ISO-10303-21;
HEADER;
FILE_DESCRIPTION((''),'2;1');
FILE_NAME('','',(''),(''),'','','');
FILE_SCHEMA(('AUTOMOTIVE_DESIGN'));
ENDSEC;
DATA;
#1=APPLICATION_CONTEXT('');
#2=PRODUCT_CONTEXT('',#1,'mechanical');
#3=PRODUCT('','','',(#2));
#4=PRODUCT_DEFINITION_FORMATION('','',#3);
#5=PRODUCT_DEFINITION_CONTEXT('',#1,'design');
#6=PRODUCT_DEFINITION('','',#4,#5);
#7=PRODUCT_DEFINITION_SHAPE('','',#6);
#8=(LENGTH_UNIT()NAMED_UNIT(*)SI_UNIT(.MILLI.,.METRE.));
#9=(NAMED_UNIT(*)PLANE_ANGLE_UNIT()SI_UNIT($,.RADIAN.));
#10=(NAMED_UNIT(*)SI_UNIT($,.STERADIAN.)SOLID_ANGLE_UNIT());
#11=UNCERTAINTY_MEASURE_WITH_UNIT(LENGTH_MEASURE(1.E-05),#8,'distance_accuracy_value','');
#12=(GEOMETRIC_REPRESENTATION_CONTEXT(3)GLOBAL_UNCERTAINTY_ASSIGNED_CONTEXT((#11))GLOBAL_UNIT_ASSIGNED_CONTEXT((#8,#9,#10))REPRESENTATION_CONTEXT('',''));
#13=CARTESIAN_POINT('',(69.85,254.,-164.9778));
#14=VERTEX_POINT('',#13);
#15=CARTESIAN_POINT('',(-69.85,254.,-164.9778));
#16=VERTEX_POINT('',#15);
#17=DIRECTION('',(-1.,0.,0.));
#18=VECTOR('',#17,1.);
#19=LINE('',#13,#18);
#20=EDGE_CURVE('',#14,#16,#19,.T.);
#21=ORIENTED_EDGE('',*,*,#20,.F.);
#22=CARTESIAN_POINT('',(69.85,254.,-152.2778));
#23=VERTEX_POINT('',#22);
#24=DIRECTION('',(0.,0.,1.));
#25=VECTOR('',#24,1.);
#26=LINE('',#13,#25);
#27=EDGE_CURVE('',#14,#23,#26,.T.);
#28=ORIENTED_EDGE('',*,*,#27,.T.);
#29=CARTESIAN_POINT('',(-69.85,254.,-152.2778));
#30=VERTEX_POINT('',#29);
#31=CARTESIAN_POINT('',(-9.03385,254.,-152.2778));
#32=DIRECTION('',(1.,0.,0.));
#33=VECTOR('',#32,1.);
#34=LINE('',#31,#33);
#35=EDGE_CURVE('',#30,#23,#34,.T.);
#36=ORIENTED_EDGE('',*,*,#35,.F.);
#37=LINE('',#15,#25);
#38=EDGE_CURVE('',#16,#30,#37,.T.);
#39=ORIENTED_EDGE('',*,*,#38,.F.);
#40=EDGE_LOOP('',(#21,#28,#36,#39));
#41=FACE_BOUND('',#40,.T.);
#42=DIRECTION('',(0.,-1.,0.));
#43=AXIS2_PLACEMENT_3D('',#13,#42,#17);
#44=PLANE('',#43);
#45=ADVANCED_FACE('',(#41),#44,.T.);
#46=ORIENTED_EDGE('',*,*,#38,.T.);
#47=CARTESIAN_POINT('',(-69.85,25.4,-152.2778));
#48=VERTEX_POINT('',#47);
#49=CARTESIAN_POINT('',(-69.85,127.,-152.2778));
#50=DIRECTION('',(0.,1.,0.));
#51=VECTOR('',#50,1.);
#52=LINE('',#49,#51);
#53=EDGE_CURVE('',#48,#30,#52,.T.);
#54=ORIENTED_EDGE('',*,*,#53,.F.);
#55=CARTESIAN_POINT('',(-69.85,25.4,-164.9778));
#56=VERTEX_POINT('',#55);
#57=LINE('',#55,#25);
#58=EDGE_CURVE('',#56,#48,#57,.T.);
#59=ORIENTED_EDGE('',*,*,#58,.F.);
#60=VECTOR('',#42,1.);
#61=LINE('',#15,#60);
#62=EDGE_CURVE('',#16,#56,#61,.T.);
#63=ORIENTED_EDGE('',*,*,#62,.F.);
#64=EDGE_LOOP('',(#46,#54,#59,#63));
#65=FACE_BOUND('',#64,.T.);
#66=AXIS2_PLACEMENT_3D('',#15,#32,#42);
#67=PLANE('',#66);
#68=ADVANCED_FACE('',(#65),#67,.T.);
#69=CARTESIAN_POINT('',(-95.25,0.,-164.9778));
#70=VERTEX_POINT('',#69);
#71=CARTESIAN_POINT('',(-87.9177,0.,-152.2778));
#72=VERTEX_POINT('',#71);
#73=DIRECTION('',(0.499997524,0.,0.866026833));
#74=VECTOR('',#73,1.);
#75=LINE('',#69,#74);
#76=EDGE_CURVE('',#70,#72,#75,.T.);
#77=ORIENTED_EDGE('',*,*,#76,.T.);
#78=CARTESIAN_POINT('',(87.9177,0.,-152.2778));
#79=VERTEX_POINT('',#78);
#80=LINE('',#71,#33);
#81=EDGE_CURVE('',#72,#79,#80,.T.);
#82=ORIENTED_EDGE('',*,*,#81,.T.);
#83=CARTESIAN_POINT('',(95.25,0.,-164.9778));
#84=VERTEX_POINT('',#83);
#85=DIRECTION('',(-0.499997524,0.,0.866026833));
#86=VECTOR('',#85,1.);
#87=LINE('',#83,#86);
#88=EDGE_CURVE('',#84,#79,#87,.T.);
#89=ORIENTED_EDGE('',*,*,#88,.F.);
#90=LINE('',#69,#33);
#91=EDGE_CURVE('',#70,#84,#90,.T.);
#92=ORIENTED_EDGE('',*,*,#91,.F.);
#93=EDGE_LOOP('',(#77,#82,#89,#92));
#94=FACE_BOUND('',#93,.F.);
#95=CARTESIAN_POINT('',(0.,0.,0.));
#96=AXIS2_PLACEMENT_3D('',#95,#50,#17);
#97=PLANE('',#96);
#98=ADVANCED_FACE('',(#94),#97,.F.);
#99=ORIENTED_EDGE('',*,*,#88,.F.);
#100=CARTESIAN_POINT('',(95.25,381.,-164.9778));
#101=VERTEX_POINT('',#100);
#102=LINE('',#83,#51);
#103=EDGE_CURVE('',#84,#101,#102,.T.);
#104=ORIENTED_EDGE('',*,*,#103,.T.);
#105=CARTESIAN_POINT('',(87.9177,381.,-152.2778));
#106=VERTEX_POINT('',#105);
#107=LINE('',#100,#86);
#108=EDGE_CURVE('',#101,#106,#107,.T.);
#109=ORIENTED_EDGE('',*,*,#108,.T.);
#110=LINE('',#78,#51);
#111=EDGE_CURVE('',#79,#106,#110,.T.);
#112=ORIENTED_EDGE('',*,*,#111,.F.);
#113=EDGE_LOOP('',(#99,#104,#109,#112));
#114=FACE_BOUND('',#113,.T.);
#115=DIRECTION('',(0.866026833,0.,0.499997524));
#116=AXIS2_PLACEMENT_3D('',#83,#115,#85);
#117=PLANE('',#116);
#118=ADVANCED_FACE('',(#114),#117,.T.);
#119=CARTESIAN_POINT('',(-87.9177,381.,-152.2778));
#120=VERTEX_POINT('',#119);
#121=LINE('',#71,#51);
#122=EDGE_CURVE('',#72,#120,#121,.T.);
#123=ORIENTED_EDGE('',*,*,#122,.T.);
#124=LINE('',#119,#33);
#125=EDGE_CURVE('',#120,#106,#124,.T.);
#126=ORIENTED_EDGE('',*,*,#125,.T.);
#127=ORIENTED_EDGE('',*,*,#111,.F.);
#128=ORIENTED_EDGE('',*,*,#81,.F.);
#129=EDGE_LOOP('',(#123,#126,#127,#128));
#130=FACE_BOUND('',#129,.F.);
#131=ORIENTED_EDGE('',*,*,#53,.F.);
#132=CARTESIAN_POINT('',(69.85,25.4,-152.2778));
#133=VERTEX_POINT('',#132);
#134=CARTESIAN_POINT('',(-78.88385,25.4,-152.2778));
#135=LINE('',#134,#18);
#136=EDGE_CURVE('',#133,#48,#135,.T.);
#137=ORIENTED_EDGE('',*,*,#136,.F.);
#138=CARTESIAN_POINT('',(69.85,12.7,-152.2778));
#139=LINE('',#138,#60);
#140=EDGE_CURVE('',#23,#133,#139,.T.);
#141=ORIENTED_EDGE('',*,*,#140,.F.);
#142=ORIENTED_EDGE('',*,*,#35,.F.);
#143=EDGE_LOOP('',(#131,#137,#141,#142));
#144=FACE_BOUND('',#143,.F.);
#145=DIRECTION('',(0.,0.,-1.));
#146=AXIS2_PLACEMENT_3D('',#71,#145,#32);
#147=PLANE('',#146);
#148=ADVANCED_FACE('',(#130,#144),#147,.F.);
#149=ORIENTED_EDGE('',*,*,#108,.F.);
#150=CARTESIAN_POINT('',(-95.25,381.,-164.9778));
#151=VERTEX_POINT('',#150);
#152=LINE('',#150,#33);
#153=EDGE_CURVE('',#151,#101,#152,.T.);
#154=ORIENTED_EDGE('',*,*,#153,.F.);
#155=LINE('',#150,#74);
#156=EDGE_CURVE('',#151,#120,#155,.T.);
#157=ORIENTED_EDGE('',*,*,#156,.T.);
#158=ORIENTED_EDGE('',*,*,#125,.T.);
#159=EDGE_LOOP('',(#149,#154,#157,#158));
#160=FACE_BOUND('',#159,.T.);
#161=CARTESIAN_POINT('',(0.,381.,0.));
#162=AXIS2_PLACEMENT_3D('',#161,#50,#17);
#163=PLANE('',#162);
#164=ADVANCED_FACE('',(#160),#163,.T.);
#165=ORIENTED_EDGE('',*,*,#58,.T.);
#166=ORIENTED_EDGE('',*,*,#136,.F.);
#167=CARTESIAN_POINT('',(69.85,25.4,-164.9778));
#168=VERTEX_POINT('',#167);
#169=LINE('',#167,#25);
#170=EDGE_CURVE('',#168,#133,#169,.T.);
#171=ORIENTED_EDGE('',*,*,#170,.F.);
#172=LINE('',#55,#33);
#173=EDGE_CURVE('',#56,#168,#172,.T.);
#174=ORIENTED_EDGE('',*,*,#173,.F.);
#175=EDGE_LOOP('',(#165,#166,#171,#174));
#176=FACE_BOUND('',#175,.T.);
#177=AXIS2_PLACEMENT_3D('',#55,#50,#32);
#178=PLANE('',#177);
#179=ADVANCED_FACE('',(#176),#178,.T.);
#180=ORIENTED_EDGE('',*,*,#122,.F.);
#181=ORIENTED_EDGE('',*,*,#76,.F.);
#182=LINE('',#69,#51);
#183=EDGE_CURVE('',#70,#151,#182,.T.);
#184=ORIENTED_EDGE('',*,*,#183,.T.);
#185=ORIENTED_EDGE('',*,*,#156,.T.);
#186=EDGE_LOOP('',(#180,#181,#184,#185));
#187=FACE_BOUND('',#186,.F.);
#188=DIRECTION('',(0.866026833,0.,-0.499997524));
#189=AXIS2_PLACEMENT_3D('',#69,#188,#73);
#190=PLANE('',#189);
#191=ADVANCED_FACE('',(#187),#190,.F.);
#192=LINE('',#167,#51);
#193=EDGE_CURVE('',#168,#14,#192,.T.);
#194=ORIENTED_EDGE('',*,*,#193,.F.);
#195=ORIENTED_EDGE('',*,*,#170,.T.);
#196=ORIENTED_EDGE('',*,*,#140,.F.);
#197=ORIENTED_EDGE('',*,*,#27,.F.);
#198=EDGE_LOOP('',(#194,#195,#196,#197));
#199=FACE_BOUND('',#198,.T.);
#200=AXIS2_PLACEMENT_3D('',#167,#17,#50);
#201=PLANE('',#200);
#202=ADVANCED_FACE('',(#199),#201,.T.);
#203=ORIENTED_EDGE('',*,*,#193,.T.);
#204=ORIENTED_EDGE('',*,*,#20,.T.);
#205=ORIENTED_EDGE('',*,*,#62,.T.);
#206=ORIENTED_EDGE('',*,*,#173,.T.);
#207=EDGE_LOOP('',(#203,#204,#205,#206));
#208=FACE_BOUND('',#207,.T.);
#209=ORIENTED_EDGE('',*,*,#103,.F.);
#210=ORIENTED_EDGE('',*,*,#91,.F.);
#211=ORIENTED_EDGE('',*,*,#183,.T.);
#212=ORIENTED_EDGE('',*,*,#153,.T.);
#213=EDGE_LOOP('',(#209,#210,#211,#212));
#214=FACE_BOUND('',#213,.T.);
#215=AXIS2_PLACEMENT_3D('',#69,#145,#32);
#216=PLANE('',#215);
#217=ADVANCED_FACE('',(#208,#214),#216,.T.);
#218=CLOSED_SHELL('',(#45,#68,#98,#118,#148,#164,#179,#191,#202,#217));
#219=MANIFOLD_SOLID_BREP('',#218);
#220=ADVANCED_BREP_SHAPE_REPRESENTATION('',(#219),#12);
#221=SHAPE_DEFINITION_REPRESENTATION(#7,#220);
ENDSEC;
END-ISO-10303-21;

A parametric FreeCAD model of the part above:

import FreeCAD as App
import Part
import Sketcher
Q = App.Units.Quantity

doc = App.newDocument("Part")
params = doc.addObject("Spreadsheet::Sheet", "Params")
for row, (alias, value) in enumerate([
    ("sketch1_width", "7.5 in"),
    ("pad1_length", "15 in"),
    ("sketch2_height", "9 in"),
    ("sketch2_width", "5.5 in"),
], start=1):
    params.set(f"A{row}", alias)
    params.set(f"B{row}", "=" + value)
    params.setAlias(f"B{row}", alias)

body = doc.addObject("PartDesign::Body", "Body")

sketch1 = doc.addObject("Sketcher::SketchObject", "Sketch")
body.addObject(sketch1)
sketch1.AttachmentSupport = (doc.XZ_Plane, [""])
sketch1.MapMode = "FlatFace"
sketch1.addGeometry(Part.LineSegment(App.Vector(95, -165, 0), App.Vector(-95, -165, 0)), False)
sketch1.addGeometry(Part.LineSegment(App.Vector(-95, -165, 0), App.Vector(-88, -152, 0)), False)
sketch1.addGeometry(Part.LineSegment(App.Vector(-88, -152, 0), App.Vector(88, -152, 0)), False)
sketch1.addGeometry(Part.LineSegment(App.Vector(88, -152, 0), App.Vector(95, -165, 0)), False)
sketch1.addConstraint(Sketcher.Constraint("Coincident", 0, 2, 1, 1))
sketch1.addConstraint(Sketcher.Constraint("Coincident", 1, 2, 2, 1))
sketch1.addConstraint(Sketcher.Constraint("Coincident", 2, 2, 3, 1))
sketch1.addConstraint(Sketcher.Constraint("Coincident", 3, 2, 0, 1))
sketch1.addConstraint(Sketcher.Constraint("Horizontal", 0))
sketch1.addConstraint(Sketcher.Constraint("Horizontal", 2))
sketch1.addConstraint(Sketcher.Constraint("Equal", 1, 3))
sketch1.addConstraint(Sketcher.Constraint("DistanceX", 0, 2, 0, 1, Q("7.5 in")))
sketch1.addConstraint(Sketcher.Constraint("DistanceY", 0, 2, 1, 2, Q("0.5 in")))
sketch1.addConstraint(Sketcher.Constraint("Angle", 1, Q("60.0002 deg")))
sketch1.addConstraint(Sketcher.Constraint("DistanceX", 0, 2, -1, 1, Q("3.75 in")))
sketch1.addConstraint(Sketcher.Constraint("DistanceY", 0, 2, -1, 1, Q("6.4952 in")))
sketch1.setExpression("Constraints[7]", "Params.sketch1_width")
pad1 = doc.addObject("PartDesign::Pad", "Pad")
body.addObject(pad1)
pad1.Profile = sketch1
pad1.setExpression("Length", "Params.pad1_length")
pad1.Reversed = True

sketch2 = doc.addObject("Sketcher::SketchObject", "Sketch001")
body.addObject(sketch2)
sketch2.AttachmentSupport = (doc.XY_Plane, [""])
sketch2.MapMode = "FlatFace"
sketch2.AttachmentOffset = App.Placement(App.Vector(0, 0, -6.495189 * 25.4), App.Rotation())
sketch2.addGeometry(Part.LineSegment(App.Vector(-70, 254, 0), App.Vector(70, 254, 0)), False)
sketch2.addGeometry(Part.LineSegment(App.Vector(70, 254, 0), App.Vector(70, 25, 0)), False)
sketch2.addGeometry(Part.LineSegment(App.Vector(70, 25, 0), App.Vector(-70, 25, 0)), False)
sketch2.addGeometry(Part.LineSegment(App.Vector(-70, 25, 0), App.Vector(-70, 254, 0)), False)
sketch2.addConstraint(Sketcher.Constraint("Coincident", 0, 2, 1, 1))
sketch2.addConstraint(Sketcher.Constraint("Coincident", 1, 2, 2, 1))
sketch2.addConstraint(Sketcher.Constraint("Coincident", 2, 2, 3, 1))
sketch2.addConstraint(Sketcher.Constraint("Coincident", 3, 2, 0, 1))
sketch2.addConstraint(Sketcher.Constraint("Horizontal", 0))
sketch2.addConstraint(Sketcher.Constraint("Vertical", 1))
sketch2.addConstraint(Sketcher.Constraint("Horizontal", 2))
sketch2.addConstraint(Sketcher.Constraint("Vertical", 3))
sketch2.addConstraint(Sketcher.Constraint("DistanceY", 1, 2, 1, 1, Q("9 in")))
sketch2.addConstraint(Sketcher.Constraint("DistanceX", 0, 1, 0, 2, Q("5.5 in")))
sketch2.addConstraint(Sketcher.Constraint("DistanceY", -1, 1, 1, 2, Q("1 in")))
sketch2.addConstraint(Sketcher.Constraint("DistanceX", -1, 1, 0, 2, Q("2.75 in")))
sketch2.setExpression("Constraints[8]", "Params.sketch2_height")
sketch2.setExpression("Constraints[9]", "Params.sketch2_width")
pocket1 = doc.addObject("PartDesign::Pocket", "Pocket")
body.addObject(pocket1)
pocket1.Profile = sketch2
pocket1.Type = "UpToFirst"
pocket1.Reversed = True

doc.recompute()
